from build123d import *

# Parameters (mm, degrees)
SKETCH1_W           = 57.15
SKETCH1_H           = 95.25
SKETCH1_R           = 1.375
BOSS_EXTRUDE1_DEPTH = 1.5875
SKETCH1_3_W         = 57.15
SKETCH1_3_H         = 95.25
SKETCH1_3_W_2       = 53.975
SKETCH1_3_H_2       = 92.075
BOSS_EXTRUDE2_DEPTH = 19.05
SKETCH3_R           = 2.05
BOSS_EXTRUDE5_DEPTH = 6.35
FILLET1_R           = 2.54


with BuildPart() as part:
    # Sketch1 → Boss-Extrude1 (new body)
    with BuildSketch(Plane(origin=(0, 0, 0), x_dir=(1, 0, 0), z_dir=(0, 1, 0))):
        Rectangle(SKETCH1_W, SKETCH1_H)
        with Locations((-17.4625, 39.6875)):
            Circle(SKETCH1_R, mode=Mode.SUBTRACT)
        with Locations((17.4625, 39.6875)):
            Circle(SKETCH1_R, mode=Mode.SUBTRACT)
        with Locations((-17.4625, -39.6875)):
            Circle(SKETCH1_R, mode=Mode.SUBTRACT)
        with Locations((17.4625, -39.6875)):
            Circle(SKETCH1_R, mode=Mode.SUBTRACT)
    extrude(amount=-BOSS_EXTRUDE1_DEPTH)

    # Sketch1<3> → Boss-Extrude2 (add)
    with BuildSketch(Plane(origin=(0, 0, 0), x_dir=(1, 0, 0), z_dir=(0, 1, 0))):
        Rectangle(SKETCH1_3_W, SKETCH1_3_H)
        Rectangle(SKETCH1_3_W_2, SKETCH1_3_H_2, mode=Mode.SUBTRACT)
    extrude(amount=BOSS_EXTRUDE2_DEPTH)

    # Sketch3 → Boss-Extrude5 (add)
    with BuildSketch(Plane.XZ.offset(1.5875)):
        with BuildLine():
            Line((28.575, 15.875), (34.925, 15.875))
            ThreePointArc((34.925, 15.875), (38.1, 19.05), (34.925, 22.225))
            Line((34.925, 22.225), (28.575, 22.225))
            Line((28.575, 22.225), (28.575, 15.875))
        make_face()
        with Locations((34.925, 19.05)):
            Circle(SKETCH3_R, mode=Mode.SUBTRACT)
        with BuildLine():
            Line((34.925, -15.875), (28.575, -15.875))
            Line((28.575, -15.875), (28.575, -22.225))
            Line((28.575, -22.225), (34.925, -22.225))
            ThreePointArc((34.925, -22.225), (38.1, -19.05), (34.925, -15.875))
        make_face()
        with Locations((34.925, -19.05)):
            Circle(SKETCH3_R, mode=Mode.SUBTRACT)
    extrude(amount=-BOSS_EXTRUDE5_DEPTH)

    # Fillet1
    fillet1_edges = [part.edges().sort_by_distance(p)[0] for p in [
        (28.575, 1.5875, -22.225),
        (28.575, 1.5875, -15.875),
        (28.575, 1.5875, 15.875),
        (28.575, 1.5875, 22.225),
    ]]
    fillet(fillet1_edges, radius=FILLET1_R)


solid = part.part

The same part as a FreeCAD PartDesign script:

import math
import FreeCAD as App
import Part
import Sketcher
Q = App.Units.Quantity


def edges_at(feature, points):
    """Names of the edges that pass closest to the given points."""
    edges = feature.Shape.Edges
    near = lambda p: min(range(len(edges)), key=lambda i: edges[i].distToShape(Part.Vertex(*p))[0])
    return sorted({f"Edge{near(p) + 1}" for p in points})

doc = App.newDocument("Part")
body = doc.addObject("PartDesign::Body", "Body")

# Sketch on XZ plane
sketch1 = body.newObject("Sketcher::SketchObject", "Sketch")
sketch1.AttachmentSupport = (doc.getObject("XZ_Plane"), [""])
sketch1.MapMode = "FlatFace"
sketch1.addGeometry([
    Part.LineSegment(App.Vector(-28.575, -47.625, 0), App.Vector(-28.575, 47.625, 0)),  # 0
    Part.LineSegment(App.Vector(-28.575, 47.625, 0), App.Vector(28.575, 47.625, 0)),  # 1
    Part.LineSegment(App.Vector(28.575, 47.625, 0), App.Vector(28.575, -47.625, 0)),  # 2
    Part.LineSegment(App.Vector(28.575, -47.625, 0), App.Vector(-28.575, -47.625, 0)),  # 3
    Part.Circle(App.Vector(-17.4625, 39.6875, 0), App.Vector(0, 0, 1), 1.375),  # 4
    Part.Circle(App.Vector(17.4625, 39.6875, 0), App.Vector(0, 0, 1), 1.375),  # 5
    Part.Circle(App.Vector(-17.4625, -39.6875, 0), App.Vector(0, 0, 1), 1.375),  # 6
    Part.Circle(App.Vector(17.4625, -39.6875, 0), App.Vector(0, 0, 1), 1.375),  # 7
], False)
sketch1.addConstraint([
    Sketcher.Constraint("Coincident", 0, 2, 1, 1),
    Sketcher.Constraint("Coincident", 1, 2, 2, 1),
    Sketcher.Constraint("Coincident", 2, 2, 3, 1),
    Sketcher.Constraint("Coincident", 3, 2, 0, 1),
    Sketcher.Constraint("Vertical", 0),
    Sketcher.Constraint("Horizontal", 1),
    Sketcher.Constraint("Vertical", 2),
    Sketcher.Constraint("Horizontal", 3),
    Sketcher.Constraint("Equal", 4, 5),
    Sketcher.Constraint("Equal", 5, 6),
    Sketcher.Constraint("Equal", 6, 7),
    Sketcher.Constraint("Symmetric", 5, 3, 6, 3, -1, 1),
    Sketcher.Constraint("Symmetric", 4, 3, 7, 3, -1, 1),
    Sketcher.Constraint("Symmetric", 0, 2, 2, 2, -1, 1),
    Sketcher.Constraint("Symmetric", 4, 3, 5, 3, -2),
    Sketcher.Constraint("DistanceX", 1, 1, 1, 2, Q("2.25 in")),
    Sketcher.Constraint("DistanceY", 0, 1, 0, 2, Q("3.75 in")),
    Sketcher.Constraint("Diameter", 4, 2.75),
    Sketcher.Constraint("DistanceX", 4, 3, -1, 1, Q("0.6875 in")),
    Sketcher.Constraint("DistanceY", -1, 1, 4, 3, Q("1.5625 in")),
])
pad1 = body.newObject("PartDesign::Pad", "Pad")
pad1.Profile = sketch1
pad1.Length = Q("0.0625 in")

# Sketch on XZ plane
sketch2 = body.newObject("Sketcher::SketchObject", "Sketch001")
sketch2.AttachmentSupport = (doc.getObject("XZ_Plane"), [""])
sketch2.MapMode = "FlatFace"
sketch2.addGeometry([
    Part.LineSegment(App.Vector(-28.575, -47.625, 0), App.Vector(-28.575, 47.625, 0)),  # 0
    Part.LineSegment(App.Vector(-28.575, 47.625, 0), App.Vector(28.575, 47.625, 0)),  # 1
    Part.LineSegment(App.Vector(28.575, 47.625, 0), App.Vector(28.575, -47.625, 0)),  # 2
    Part.LineSegment(App.Vector(28.575, -47.625, 0), App.Vector(-28.575, -47.625, 0)),  # 3
    Part.LineSegment(App.Vector(26.9875, 46.0375, 0), App.Vector(-26.9875, 46.0375, 0)),  # 4
    Part.LineSegment(App.Vector(-26.9875, 46.0375, 0), App.Vector(-26.9875, -46.0375, 0)),  # 5
    Part.LineSegment(App.Vector(-26.9875, -46.0375, 0), App.Vector(26.9875, -46.0375, 0)),  # 6
    Part.LineSegment(App.Vector(26.9875, -46.0375, 0), App.Vector(26.9875, 46.0375, 0)),  # 7
], False)
sketch2.addConstraint([
    Sketcher.Constraint("Coincident", 0, 2, 1, 1),
    Sketcher.Constraint("Coincident", 1, 2, 2, 1),
    Sketcher.Constraint("Coincident", 2, 2, 3, 1),
    Sketcher.Constraint("Coincident", 3, 2, 0, 1),
    Sketcher.Constraint("Coincident", 4, 2, 5, 1),
    Sketcher.Constraint("Coincident", 5, 2, 6, 1),
    Sketcher.Constraint("Coincident", 6, 2, 7, 1),
    Sketcher.Constraint("Coincident", 7, 2, 4, 1),
    Sketcher.Constraint("Vertical", 0),
    Sketcher.Constraint("Horizontal", 1),
    Sketcher.Constraint("Vertical", 2),
    Sketcher.Constraint("Horizontal", 3),
    Sketcher.Constraint("Horizontal", 4),
    Sketcher.Constraint("Vertical", 5),
    Sketcher.Constraint("Horizontal", 6),
    Sketcher.Constraint("Vertical", 7),
    Sketcher.Constraint("Symmetric", 0, 2, 2, 2, -1, 1),
    Sketcher.Constraint("Symmetric", 4, 2, 6, 2, -1, 1),
    Sketcher.Constraint("DistanceX", 1, 1, 1, 2, Q("2.25 in")),
    Sketcher.Constraint("DistanceY", 0, 1, 0, 2, Q("3.75 in")),
    Sketcher.Constraint("DistanceX", 4, 2, 4, 1, Q("2.125 in")),
    Sketcher.Constraint("DistanceY", 5, 2, 5, 1, Q("3.625 in")),
])
pad2 = body.newObject("PartDesign::Pad", "Pad001")
pad2.Profile = sketch2
pad2.Length = Q("0.75 in")
pad2.Reversed = True

# Sketch on XZ plane
sketch3 = body.newObject("Sketcher::SketchObject", "Sketch002")
sketch3.AttachmentSupport = (doc.getObject("XZ_Plane"), [""])
sketch3.MapMode = "FlatFace"
sketch3.AttachmentOffset = App.Placement(App.Vector(0, 0, 0.0625 * 25.4), App.Rotation())
sketch3.addGeometry([
    Part.LineSegment(App.Vector(28.575, 15.875, 0), App.Vector(34.925, 15.875, 0)),  # 0
    Part.ArcOfCircle(Part.Circle(App.Vector(34.925, 19.05, 0), App.Vector(0, 0, 1), 3.175), math.radians(-90), math.radians(90)),  # 1
    Part.LineSegment(App.Vector(34.925, 22.225, 0), App.Vector(28.575, 22.225, 0)),  # 2
    Part.LineSegment(App.Vector(28.575, 22.225, 0), App.Vector(28.575, 15.875, 0)),  # 3
    Part.Circle(App.Vector(34.925, 19.05, 0), App.Vector(0, 0, 1), 2.05),  # 4
    Part.LineSegment(App.Vector(34.925, -15.875, 0), App.Vector(28.575, -15.875, 0)),  # 5
    Part.LineSegment(App.Vector(28.575, -15.875, 0), App.Vector(28.575, -22.225, 0)),  # 6
    Part.LineSegment(App.Vector(28.575, -22.225, 0), App.Vector(34.925, -22.225, 0)),  # 7
    Part.ArcOfCircle(Part.Circle(App.Vector(34.925, -19.05, 0), App.Vector(0, 0, 1), 3.175), math.radians(-90), math.radians(90)),  # 8
    Part.Circle(App.Vector(34.925, -19.05, 0), App.Vector(0, 0, 1), 2.05),  # 9
], False)
sketch3.addConstraint([
    Sketcher.Constraint("Tangent", 0, 2, 1, 1),
    Sketcher.Constraint("Tangent", 1, 2, 2, 1),
    Sketcher.Constraint("Coincident", 2, 2, 3, 1),
    Sketcher.Constraint("Coincident", 3, 2, 0, 1),
    Sketcher.Constraint("Coincident", 5, 2, 6, 1),
    Sketcher.Constraint("Coincident", 6, 2, 7, 1),
    Sketcher.Constraint("Tangent", 7, 2, 8, 1),
    Sketcher.Constraint("Tangent", 8, 2, 5, 1),
    Sketcher.Constraint("Horizontal", 0),
    Sketcher.Constraint("Horizontal", 2),
    Sketcher.Constraint("Vertical", 3),
    Sketcher.Constraint("Horizontal", 5),
    Sketcher.Constraint("Vertical", 6),
    Sketcher.Constraint("Horizontal", 7),
    Sketcher.Constraint("Coincident", 4, 3, 1, 3),
    Sketcher.Constraint("Coincident", 9, 3, 8, 3),
    Sketcher.Constraint("Equal", 1, 8),
    Sketcher.Constraint("Equal", 4, 9),
    Sketcher.Constraint("Symmetric", 1, 3, 8, 3, -1),
    Sketcher.Constraint("Vertical", 3, 2, 5, 2),
    Sketcher.Constraint("Equal", 7, 3),
    Sketcher.Constraint("Radius", 1, Q("0.125 in")),
    Sketcher.Constraint("DistanceY", 8, 3, 1, 3, Q("1.5 in")),
    Sketcher.Constraint("Diameter", 4, 4.1),
    Sketcher.Constraint("DistanceX", -1, 1, 1, 3, Q("1.375 in")),
])
pad3 = body.newObject("PartDesign::Pad", "Pad002")
pad3.Profile = sketch3
pad3.Length = Q("0.25 in")
pad3.Reversed = True
doc.recompute()

fillet = body.newObject("PartDesign::Fillet", "Fillet")
fillet.Base = (pad3, edges_at(pad3, [
    (28.575, 1.587, -22.225),
    (28.575, 1.587, -15.875),
    (28.575, 1.587, 15.875),
    (28.575, 1.587, 22.225),
]))
fillet.Radius = Q("0.1 in")

doc.recompute()
